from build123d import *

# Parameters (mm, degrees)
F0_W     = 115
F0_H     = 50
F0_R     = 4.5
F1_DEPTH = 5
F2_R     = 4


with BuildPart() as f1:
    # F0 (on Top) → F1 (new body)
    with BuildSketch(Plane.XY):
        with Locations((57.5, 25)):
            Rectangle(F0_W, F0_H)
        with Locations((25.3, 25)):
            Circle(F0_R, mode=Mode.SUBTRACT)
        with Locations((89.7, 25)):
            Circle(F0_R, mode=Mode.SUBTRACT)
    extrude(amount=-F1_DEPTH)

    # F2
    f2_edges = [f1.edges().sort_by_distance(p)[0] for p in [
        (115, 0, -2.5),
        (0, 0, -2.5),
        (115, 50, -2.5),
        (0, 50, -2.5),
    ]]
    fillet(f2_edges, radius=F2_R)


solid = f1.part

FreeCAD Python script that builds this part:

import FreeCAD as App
import Part
import Sketcher

V = App.Vector
Q = App.Units.Quantity


def edges_at(feature, points):
    """Names of the edges that pass closest to the given points."""
    edges = feature.Shape.Edges
    near = lambda p: min(range(len(edges)), key=lambda i: edges[i].distToShape(Part.Vertex(*p))[0])
    return sorted({f"Edge{near(p) + 1}" for p in points})


def add_polygon(sketch, points):
    """Adds a closed chain of lines whose ends are joined by coincident constraints."""
    first, n = sketch.GeometryCount, len(points)
    for a, b in zip(points, points[1:] + points[:1]):
        sketch.addGeometry(Part.LineSegment(App.Vector(*a, 0), App.Vector(*b, 0)), False)
    for i in range(n):
        sketch.addConstraint(Sketcher.Constraint("Coincident", first + i, 2, first + (i + 1) % n, 1))

doc = App.newDocument("Part")
body = doc.addObject("PartDesign::Body", "Body")

sketch1 = doc.addObject("Sketcher::SketchObject", "Sketch")
body.addObject(sketch1)
sketch1.AttachmentSupport = (doc.XY_Plane, [""])
sketch1.MapMode = "FlatFace"
add_polygon(sketch1, [(0, 50), (0, 0), (115, 0), (115, 50)])
sketch1.addGeometry(Part.Circle(V(25.3, 25, 0), V(0, 0, 1), 4.5), False)
sketch1.addGeometry(Part.Circle(V(89.7, 25, 0), V(0, 0, 1), 4.5), False)
sketch1.addConstraint(Sketcher.Constraint("Vertical", 0))
sketch1.addConstraint(Sketcher.Constraint("Horizontal", 1))
sketch1.addConstraint(Sketcher.Constraint("Vertical", 2))
sketch1.addConstraint(Sketcher.Constraint("Horizontal", 3))
sketch1.addConstraint(Sketcher.Constraint("Coincident", 0, 2, -1, 1))
sketch1.addConstraint(Sketcher.Constraint("Equal", 4, 5))
sketch1.addConstraint(Sketcher.Constraint("Horizontal", 4, 3, 5, 3))
sketch1.addConstraint(Sketcher.Constraint("Diameter", 4, Q("9 mm")))
sketch1.addConstraint(Sketcher.Constraint("DistanceX", 1, 1, 1, 2, Q("115 mm")))
sketch1.addConstraint(Sketcher.Constraint("DistanceY", 0, 2, 0, 1, Q("50 mm")))
sketch1.addConstraint(Sketcher.Constraint("DistanceY", -1, 1, 4, 3, Q("25 mm")))
sketch1.addConstraint(Sketcher.Constraint("DistanceX", -1, 1, 4, 3, Q("25.3 mm")))
sketch1.addConstraint(Sketcher.Constraint("DistanceX", -1, 1, 5, 3, Q("89.7 mm")))
pad1 = doc.addObject("PartDesign::Pad", "Pad")
body.addObject(pad1)
pad1.Profile = sketch1
pad1.Length = 5
pad1.Reversed = True
doc.recompute()

fillet = doc.addObject("PartDesign::Fillet", "Fillet")
body.addObject(fillet)
fillet.Base = (pad1, edges_at(pad1, [
    (115, 0, -2.5),
    (0, 0, -2.5),
    (115, 50, -2.5),
    (0, 50, -2.5),
]))
fillet.Radius = 4

doc.recompute()
